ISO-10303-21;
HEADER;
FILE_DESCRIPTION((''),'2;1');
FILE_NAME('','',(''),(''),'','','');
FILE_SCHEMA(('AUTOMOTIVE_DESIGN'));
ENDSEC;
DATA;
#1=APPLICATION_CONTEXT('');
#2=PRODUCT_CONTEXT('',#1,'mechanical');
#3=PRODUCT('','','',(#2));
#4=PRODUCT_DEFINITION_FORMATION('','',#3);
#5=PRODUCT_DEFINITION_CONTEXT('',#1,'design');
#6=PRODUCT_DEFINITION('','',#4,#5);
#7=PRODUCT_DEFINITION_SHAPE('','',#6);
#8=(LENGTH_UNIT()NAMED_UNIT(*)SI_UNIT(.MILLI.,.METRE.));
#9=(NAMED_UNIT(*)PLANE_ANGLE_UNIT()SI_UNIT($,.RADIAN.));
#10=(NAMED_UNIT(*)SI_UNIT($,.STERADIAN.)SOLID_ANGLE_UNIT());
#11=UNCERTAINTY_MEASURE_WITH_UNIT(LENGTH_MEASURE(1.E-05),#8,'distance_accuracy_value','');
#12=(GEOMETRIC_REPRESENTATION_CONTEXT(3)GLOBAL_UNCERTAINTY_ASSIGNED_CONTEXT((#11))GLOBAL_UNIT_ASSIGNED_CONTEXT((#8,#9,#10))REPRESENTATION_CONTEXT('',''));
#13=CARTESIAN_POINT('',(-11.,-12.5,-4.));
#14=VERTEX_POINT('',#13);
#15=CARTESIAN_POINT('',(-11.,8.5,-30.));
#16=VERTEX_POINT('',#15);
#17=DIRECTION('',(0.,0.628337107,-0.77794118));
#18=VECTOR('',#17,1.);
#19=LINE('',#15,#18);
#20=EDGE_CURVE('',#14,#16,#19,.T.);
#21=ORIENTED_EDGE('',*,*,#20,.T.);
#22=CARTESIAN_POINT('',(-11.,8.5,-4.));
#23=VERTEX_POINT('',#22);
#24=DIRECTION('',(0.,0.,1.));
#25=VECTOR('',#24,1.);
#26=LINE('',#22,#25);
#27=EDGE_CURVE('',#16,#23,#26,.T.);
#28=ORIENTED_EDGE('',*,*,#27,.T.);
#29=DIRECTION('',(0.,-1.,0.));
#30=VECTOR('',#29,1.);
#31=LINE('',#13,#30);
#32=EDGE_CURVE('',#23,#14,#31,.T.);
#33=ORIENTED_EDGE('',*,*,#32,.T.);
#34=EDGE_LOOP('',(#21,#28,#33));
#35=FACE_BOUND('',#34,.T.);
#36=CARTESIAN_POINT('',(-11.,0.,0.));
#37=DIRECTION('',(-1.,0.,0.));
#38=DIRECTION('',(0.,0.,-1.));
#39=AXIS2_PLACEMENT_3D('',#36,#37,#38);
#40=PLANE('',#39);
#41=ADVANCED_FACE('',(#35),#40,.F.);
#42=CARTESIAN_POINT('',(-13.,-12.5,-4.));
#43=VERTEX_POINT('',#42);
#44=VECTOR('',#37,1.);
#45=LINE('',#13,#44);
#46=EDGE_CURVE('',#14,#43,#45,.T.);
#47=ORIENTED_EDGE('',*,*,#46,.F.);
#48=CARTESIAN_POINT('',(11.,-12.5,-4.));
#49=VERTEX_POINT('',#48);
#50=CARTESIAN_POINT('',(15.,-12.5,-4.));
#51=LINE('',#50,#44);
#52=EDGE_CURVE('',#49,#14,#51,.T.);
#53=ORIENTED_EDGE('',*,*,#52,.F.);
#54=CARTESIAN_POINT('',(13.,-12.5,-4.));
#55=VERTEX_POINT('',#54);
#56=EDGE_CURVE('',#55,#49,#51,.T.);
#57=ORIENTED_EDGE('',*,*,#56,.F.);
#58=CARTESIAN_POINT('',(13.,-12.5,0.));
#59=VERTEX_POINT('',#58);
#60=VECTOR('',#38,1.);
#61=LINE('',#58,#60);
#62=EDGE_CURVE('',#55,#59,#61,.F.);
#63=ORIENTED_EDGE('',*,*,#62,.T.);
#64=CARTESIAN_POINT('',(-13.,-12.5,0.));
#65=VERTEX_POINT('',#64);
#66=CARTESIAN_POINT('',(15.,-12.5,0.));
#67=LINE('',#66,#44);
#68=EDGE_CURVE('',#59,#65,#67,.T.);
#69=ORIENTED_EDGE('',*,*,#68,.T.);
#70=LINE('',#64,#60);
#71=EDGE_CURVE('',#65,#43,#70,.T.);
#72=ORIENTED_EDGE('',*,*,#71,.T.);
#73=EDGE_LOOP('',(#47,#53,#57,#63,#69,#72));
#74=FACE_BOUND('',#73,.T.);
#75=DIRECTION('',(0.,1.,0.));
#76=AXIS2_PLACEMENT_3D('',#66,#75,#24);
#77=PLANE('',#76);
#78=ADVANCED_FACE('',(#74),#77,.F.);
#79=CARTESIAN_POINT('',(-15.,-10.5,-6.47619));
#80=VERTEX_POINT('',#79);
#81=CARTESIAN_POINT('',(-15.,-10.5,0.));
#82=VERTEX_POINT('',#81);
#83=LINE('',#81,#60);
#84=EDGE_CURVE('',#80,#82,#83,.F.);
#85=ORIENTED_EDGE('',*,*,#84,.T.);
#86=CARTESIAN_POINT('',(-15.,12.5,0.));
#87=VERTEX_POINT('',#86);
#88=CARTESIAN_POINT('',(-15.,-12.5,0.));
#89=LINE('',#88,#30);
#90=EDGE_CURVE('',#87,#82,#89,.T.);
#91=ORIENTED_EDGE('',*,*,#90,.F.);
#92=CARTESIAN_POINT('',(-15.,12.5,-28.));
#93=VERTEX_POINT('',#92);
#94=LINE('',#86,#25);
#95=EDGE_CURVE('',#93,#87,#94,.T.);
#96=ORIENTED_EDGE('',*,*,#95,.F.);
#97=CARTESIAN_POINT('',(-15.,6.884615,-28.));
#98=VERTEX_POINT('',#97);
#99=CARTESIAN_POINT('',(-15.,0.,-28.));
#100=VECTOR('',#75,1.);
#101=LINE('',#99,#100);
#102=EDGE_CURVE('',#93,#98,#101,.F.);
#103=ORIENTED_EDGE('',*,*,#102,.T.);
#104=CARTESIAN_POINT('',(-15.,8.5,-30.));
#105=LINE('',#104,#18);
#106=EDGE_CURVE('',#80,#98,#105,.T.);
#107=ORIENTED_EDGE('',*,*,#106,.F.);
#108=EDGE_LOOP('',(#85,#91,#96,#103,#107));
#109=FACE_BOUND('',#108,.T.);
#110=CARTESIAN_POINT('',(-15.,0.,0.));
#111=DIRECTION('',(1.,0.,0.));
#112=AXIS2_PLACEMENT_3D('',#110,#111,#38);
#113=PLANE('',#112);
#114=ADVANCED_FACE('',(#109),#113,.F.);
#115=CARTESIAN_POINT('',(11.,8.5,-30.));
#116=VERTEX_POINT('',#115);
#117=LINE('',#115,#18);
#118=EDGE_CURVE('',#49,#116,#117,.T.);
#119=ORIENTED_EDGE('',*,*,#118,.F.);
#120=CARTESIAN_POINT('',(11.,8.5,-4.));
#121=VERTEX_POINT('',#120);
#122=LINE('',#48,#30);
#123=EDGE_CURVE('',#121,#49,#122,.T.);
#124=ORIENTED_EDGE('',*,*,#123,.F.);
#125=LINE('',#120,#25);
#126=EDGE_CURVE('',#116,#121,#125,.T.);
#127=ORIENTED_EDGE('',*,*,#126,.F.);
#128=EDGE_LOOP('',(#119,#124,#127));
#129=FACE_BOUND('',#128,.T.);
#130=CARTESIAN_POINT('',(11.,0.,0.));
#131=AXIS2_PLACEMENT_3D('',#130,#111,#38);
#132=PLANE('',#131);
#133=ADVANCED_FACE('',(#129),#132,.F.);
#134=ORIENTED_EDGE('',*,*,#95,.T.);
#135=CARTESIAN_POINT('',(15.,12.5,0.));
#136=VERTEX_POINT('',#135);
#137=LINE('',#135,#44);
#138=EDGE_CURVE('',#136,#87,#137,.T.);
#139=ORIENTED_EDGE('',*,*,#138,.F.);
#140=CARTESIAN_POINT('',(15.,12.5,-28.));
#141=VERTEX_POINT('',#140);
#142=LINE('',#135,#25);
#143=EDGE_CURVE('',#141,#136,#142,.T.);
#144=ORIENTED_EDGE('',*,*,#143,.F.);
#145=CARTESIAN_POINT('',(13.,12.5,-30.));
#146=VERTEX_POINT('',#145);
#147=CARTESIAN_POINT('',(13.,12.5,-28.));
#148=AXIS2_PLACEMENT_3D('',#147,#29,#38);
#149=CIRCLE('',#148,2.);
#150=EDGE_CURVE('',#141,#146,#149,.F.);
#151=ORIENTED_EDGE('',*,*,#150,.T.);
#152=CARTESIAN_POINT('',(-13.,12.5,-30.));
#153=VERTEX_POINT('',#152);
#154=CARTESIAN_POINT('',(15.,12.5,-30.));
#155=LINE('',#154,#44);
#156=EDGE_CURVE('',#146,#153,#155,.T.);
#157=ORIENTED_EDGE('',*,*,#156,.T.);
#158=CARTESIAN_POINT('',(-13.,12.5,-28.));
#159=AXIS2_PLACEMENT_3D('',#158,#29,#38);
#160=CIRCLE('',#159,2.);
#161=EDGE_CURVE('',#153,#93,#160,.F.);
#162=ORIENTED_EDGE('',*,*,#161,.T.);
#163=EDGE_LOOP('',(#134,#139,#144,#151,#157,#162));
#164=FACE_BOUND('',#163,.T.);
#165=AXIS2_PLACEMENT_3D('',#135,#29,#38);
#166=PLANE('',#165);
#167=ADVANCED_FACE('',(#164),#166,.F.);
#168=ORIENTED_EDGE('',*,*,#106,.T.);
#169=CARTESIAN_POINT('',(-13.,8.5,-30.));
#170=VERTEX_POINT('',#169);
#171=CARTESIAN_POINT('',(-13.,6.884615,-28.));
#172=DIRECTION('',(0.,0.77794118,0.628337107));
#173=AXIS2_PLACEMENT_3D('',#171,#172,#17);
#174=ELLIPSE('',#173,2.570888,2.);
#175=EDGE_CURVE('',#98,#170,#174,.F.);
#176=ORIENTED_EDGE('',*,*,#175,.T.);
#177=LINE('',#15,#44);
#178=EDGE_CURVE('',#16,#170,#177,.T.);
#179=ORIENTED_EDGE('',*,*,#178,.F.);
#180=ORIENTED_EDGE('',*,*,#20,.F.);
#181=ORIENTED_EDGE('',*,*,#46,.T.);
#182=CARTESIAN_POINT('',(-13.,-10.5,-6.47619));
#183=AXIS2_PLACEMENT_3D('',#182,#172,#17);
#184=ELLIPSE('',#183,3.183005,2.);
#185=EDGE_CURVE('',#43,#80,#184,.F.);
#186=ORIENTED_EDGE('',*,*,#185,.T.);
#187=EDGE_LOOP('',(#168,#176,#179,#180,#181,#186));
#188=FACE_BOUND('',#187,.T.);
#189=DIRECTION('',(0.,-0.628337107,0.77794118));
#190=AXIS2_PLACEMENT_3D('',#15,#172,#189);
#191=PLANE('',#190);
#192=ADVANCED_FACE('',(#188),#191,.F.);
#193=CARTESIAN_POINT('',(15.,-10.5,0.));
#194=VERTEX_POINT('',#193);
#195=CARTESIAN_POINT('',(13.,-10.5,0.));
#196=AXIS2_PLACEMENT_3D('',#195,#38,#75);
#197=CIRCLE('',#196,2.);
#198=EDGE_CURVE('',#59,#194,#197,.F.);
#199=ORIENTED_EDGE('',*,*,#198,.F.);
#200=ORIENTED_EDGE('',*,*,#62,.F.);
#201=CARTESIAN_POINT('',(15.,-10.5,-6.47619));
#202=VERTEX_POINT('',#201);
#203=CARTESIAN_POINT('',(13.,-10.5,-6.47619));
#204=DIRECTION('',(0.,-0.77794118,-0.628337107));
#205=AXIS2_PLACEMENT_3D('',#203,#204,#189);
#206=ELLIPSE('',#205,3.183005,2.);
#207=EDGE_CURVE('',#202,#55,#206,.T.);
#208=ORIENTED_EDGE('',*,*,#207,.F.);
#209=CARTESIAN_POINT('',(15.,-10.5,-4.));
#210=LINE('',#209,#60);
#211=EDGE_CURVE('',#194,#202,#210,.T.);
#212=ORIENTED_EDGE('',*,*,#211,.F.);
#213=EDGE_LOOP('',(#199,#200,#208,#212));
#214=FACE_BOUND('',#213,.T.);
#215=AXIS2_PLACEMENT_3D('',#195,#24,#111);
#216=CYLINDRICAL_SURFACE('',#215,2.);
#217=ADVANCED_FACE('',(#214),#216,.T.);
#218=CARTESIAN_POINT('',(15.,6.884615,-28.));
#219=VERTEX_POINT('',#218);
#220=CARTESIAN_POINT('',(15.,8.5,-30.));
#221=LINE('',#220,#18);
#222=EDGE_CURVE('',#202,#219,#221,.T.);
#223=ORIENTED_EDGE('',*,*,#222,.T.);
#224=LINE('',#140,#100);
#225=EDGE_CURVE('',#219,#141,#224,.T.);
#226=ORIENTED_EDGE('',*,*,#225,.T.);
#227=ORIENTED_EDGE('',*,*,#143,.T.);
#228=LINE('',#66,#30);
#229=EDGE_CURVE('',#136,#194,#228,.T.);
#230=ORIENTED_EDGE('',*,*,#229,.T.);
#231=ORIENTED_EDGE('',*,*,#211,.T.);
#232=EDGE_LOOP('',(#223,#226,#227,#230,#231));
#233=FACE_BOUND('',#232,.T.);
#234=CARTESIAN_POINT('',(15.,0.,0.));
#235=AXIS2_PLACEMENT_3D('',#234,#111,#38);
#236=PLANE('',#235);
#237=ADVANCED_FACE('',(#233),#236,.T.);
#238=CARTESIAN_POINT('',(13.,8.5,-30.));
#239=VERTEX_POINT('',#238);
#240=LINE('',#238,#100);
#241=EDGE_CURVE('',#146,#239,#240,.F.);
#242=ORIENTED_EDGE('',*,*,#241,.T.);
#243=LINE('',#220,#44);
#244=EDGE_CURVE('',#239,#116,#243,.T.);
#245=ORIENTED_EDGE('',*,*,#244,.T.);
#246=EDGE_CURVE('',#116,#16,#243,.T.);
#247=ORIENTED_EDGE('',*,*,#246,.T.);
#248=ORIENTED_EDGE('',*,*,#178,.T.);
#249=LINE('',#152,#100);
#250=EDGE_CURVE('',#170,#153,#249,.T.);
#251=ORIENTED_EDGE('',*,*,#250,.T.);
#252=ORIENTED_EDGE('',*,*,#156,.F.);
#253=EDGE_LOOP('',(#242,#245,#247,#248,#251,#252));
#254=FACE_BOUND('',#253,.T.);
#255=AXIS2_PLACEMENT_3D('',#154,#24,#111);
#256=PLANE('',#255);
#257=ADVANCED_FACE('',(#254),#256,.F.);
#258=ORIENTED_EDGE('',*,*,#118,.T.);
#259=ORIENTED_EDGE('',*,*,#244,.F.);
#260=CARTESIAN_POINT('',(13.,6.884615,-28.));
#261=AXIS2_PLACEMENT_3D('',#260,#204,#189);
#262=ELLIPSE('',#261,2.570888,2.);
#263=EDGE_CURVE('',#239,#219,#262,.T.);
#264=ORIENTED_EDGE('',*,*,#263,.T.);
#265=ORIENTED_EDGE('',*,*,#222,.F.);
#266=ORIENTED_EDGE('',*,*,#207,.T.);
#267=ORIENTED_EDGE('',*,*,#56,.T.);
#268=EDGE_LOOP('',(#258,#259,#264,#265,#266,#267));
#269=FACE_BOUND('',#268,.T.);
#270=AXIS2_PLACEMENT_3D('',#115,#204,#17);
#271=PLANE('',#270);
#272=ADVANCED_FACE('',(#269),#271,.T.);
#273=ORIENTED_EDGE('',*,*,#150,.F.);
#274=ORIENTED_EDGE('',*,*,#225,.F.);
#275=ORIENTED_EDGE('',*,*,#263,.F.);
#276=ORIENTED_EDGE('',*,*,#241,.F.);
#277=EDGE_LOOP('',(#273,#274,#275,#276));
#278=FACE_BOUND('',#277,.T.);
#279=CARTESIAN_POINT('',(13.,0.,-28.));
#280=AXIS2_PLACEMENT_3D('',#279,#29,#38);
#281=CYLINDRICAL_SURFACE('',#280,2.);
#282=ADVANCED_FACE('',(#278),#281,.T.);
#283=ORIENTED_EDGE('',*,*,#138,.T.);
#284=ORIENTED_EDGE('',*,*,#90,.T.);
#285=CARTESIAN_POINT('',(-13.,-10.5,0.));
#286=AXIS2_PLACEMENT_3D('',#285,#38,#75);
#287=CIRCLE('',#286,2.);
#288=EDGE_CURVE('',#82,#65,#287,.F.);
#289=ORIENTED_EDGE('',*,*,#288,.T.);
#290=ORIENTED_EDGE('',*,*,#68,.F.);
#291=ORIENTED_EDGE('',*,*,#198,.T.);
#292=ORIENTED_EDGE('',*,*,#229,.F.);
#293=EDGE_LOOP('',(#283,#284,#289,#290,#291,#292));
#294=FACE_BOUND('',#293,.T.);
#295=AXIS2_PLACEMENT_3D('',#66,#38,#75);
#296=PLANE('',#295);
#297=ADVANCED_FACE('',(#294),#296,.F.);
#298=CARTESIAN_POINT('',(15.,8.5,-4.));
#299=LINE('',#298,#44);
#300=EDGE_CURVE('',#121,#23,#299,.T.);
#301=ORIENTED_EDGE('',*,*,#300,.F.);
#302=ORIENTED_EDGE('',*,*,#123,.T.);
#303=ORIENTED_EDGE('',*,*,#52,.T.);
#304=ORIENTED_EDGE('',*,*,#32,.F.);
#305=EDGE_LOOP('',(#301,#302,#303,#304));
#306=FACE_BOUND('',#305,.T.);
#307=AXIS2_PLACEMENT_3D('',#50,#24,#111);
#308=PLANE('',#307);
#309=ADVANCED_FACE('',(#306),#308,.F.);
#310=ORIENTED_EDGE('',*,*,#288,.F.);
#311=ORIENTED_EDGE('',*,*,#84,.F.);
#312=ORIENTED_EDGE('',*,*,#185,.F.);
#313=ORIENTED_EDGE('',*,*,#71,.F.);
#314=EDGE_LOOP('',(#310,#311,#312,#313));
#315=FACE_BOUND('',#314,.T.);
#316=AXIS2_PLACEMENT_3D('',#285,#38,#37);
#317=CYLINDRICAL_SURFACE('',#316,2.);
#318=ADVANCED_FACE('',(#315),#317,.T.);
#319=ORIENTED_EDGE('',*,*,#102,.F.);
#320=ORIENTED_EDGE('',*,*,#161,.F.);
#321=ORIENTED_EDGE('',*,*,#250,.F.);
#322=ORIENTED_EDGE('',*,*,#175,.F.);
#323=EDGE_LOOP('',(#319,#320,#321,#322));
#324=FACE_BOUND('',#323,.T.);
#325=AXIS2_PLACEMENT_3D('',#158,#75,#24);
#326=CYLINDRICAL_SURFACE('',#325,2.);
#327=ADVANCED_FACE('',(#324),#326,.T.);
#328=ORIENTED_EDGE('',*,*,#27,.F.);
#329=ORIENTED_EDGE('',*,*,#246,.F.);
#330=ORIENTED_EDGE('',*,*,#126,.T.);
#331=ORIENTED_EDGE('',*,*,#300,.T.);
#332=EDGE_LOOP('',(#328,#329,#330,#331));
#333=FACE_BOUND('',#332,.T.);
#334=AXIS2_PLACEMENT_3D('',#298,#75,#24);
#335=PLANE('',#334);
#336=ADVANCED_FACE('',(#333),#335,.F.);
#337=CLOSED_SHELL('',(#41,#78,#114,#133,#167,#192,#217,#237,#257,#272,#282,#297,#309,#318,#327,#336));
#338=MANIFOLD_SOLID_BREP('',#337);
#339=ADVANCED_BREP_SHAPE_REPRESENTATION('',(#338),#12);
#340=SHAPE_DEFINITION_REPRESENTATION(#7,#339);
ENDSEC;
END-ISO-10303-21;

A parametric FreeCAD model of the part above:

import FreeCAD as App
import Part
import Sketcher
from FreeCAD import Vector
Q = App.Units.Quantity


def edges_at(feature, points):
    """Names of the edges that pass closest to the given points."""
    edges = feature.Shape.Edges
    near = lambda p: min(range(len(edges)), key=lambda i: edges[i].distToShape(Part.Vertex(*p))[0])
    return sorted({f"Edge{near(p) + 1}" for p in points})


def add_polygon(sketch, points):
    """Adds a closed chain of lines whose ends are joined by coincident constraints."""
    first, n = sketch.GeometryCount, len(points)
    for a, b in zip(points, points[1:] + points[:1]):
        sketch.addGeometry(Part.LineSegment(App.Vector(*a, 0), App.Vector(*b, 0)), False)
    for i in range(n):
        sketch.addConstraint(Sketcher.Constraint("Coincident", first + i, 2, first + (i + 1) % n, 1))

doc = App.newDocument("Part")
body = doc.addObject("PartDesign::Body", "Body")

sketch1 = body.newObject("Sketcher::SketchObject", "Sketch")
sketch1.AttachmentSupport = (doc.getObject("YZ_Plane"), [""])
sketch1.MapMode = "FlatFace"
add_polygon(sketch1, [(12.5, 0), (-12.5, 0), (-12.5, -4), (8.5, -4), (8.5, -30), (12.5, -30)])
sketch1.addConstraint(Sketcher.Constraint("Horizontal", 0))
sketch1.addConstraint(Sketcher.Constraint("Vertical", 1))
sketch1.addConstraint(Sketcher.Constraint("Horizontal", 2))
sketch1.addConstraint(Sketcher.Constraint("Vertical", 3))
sketch1.addConstraint(Sketcher.Constraint("Horizontal", 4))
sketch1.addConstraint(Sketcher.Constraint("Vertical", 5))
sketch1.addConstraint(Sketcher.Constraint("Symmetric", 0, 2, 5, 2, -1, 1))
sketch1.addConstraint(Sketcher.Constraint("Equal", 4, 1))
sketch1.addConstraint(Sketcher.Constraint("DistanceX", 0, 2, 0, 1, Q("25 mm")))
sketch1.addConstraint(Sketcher.Constraint("DistanceX", 2, 1, 2, 2, Q("21 mm")))
sketch1.addConstraint(Sketcher.Constraint("DistanceY", 3, 2, 3, 1, Q("26 mm")))
pad1 = body.newObject("PartDesign::Pad", "Pad")
pad1.Profile = sketch1
pad1.Length = 30
pad1.Midplane = True

sketch2 = body.newObject("Sketcher::SketchObject", "Sketch001")
sketch2.AttachmentSupport = (doc.getObject("YZ_Plane"), [""])
sketch2.MapMode = "FlatFace"
sketch2.AttachmentOffset = App.Placement(Vector(0, 0, 15), App.Rotation())
add_polygon(sketch2, [(-12, -4), (8, -30), (8, -4)])
sketch2.addConstraint(Sketcher.Constraint("Vertical", 1))
sketch2.addConstraint(Sketcher.Constraint("Horizontal", 2))
sketch2.addConstraint(Sketcher.Constraint("DistanceX", 2, 2, 2, 1, Q("21 mm")))
sketch2.addConstraint(Sketcher.Constraint("DistanceY", 1, 1, 1, 2, Q("26 mm")))
sketch2.addConstraint(Sketcher.Constraint("DistanceY", 0, 2, -1, 1, Q("30 mm")))
sketch2.addConstraint(Sketcher.Constraint("DistanceX", -1, 1, 0, 2, Q("8.5 mm")))
pad2 = body.newObject("PartDesign::Pad", "Pad001")
pad2.Profile = sketch2
pad2.Length = 4
pad2.Reversed = True
doc.recompute()

mirrored = body.newObject("PartDesign::Mirrored", "Mirrored")
mirrored.Originals = [pad2]
mirrored.MirrorPlane = (doc.getObject("YZ_Plane"), [""])
body.Tip = mirrored
doc.recompute()

fillet = body.newObject("PartDesign::Fillet", "Fillet")
fillet.Base = (mirrored, edges_at(mirrored, [
    (15, -12.5, -2),
    (15, 10.5, -30),
    (-15, -12.5, -2),
    (-15, 10.5, -30),
]))
fillet.Radius = 2

doc.recompute()
